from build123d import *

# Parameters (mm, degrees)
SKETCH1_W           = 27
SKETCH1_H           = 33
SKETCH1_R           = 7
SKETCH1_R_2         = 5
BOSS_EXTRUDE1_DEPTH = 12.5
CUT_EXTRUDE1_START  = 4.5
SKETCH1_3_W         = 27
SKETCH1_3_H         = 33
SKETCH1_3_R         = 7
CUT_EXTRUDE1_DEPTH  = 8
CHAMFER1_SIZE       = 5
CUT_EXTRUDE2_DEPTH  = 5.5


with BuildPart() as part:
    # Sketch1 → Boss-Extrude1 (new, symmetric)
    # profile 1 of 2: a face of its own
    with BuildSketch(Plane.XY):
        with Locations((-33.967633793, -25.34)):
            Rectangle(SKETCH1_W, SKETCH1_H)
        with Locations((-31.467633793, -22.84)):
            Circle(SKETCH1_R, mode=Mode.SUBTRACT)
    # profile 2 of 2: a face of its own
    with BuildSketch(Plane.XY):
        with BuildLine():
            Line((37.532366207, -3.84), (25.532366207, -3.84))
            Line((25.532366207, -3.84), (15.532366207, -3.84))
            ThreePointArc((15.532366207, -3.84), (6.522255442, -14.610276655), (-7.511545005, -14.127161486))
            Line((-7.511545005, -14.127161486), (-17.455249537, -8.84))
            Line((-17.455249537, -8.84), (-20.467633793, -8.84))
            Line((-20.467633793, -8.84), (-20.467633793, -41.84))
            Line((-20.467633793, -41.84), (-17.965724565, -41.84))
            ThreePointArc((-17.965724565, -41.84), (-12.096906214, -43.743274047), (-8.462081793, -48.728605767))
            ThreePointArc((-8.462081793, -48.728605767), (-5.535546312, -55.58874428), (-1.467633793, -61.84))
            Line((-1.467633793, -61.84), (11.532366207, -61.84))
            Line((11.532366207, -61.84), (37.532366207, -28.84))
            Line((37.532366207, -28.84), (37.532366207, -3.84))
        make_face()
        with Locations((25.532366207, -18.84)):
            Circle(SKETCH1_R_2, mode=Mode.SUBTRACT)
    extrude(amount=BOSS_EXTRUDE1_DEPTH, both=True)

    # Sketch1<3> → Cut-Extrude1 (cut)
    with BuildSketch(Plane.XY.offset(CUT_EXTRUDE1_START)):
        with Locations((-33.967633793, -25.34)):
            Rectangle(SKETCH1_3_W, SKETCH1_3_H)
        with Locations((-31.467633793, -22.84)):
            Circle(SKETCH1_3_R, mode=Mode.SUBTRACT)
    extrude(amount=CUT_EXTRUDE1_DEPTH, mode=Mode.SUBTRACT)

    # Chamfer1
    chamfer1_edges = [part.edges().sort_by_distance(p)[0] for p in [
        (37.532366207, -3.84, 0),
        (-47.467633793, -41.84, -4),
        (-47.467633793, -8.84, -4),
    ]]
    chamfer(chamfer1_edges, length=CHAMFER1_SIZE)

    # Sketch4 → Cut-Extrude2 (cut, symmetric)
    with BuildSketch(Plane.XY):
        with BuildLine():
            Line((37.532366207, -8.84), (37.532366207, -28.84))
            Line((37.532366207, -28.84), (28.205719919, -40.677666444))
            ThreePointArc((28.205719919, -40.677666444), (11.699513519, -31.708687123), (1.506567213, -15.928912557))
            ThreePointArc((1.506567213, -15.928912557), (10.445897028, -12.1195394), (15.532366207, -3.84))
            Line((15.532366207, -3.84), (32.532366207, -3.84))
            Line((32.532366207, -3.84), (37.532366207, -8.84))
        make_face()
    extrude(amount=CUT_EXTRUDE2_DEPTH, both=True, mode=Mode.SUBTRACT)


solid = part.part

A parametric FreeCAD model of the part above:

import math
import FreeCAD as App
import Part
import Sketcher
from FreeCAD import Vector
Q = App.Units.Quantity


def edges_at(feature, points):
    """Names of the edges that pass closest to the given points."""
    edges = feature.Shape.Edges
    near = lambda p: min(range(len(edges)), key=lambda i: edges[i].distToShape(Part.Vertex(*p))[0])
    return sorted({f"Edge{near(p) + 1}" for p in points})

doc = App.newDocument("Part")
params = doc.addObject("Spreadsheet::Sheet", "Params")
for row, (alias, value) in enumerate([
    ("sketch1_diameter", "14 mm"),
    ("sketch1_diameter2", "10 mm"),
    ("sketch1_radius", "10 mm"),
    ("sketch1_radius2", "43 mm"),
    ("sketch1_radius3", "16 mm"),
    ("pad1_length", "25 mm"),
    ("sketch2_diameter", "14 mm"),
    ("sketch2_width", "27 mm"),
    ("sketch2_height", "33 mm"),
    ("pocket1_length", "8 mm"),
    ("chamfer_size", "5 mm"),
    ("sketch3_radius", "16 mm"),
    ("sketch3_radius2", "38 mm"),
    ("sketch3_width", "17 mm"),
    ("sketch3_height", "20 mm"),
    ("pocket2_length", "11 mm"),
], start=1):
    params.set(f"A{row}", alias)
    params.set(f"B{row}", "=" + value)
    params.setAlias(f"B{row}", alias)

body = doc.addObject("PartDesign::Body", "Body")

sketch1 = doc.addObject("Sketcher::SketchObject", "Sketch")
body.addObject(sketch1)
sketch1.AttachmentSupport = (doc.XY_Plane, [""])
sketch1.MapMode = "FlatFace"
sketch1.addGeometry([
    Part.LineSegment(Vector(-47, -9, 0), Vector(-47, -42, 0)),
    Part.LineSegment(Vector(-47, -42, 0), Vector(-18, -42, 0)),
    Part.ArcOfCircle(Part.Circle(Vector(-18, -52, 0), Vector(0, 0, 1), 10), math.radians(18), math.radians(90)),
    Part.ArcOfCircle(Part.Circle(Vector(32, -35, 0), Vector(0, 0, 1), 43), math.radians(-161.87), math.radians(-141.97)),
    Part.LineSegment(Vector(-1, -62, 0), Vector(12, -62, 0)),
    Part.LineSegment(Vector(12, -62, 0), Vector(38, -29, 0)),
    Part.LineSegment(Vector(38, -29, 0), Vector(38, -4, 0)),
    Part.LineSegment(Vector(38, -4, 0), Vector(16, -4, 0)),
    Part.ArcOfCircle(Part.Circle(Vector(0, 0, 0), Vector(0, 0, 1), 16), math.radians(-118), math.radians(-14)),
    Part.LineSegment(Vector(-8, -14, 0), Vector(-17, -9, 0)),
    Part.LineSegment(Vector(-17, -9, 0), Vector(-47, -9, 0)),
    Part.Circle(Vector(-31, -23, 0), Vector(0, 0, 1), 7),
    Part.Circle(Vector(26, -19, 0), Vector(0, 0, 1), 5),
], False)
sketch1.addConstraint([
    Sketcher.Constraint("Coincident", 0, 2, 1, 1),
    Sketcher.Constraint("Tangent", 1, 2, 2, 2),
    Sketcher.Constraint("Tangent", 2, 1, 3, 1),
    Sketcher.Constraint("Coincident", 3, 2, 4, 1),
    Sketcher.Constraint("Coincident", 4, 2, 5, 1),
    Sketcher.Constraint("Coincident", 5, 2, 6, 1),
    Sketcher.Constraint("Coincident", 6, 2, 7, 1),
    Sketcher.Constraint("Coincident", 7, 2, 8, 2),
    Sketcher.Constraint("Tangent", 8, 1, 9, 1),
    Sketcher.Constraint("Coincident", 9, 2, 10, 1),
    Sketcher.Constraint("Coincident", 10, 2, 0, 1),
    Sketcher.Constraint("Vertical", 0),
    Sketcher.Constraint("Horizontal", 1),
    Sketcher.Constraint("Horizontal", 4),
    Sketcher.Constraint("Vertical", 6),
    Sketcher.Constraint("Horizontal", 7),
    Sketcher.Constraint("Horizontal", 10),
    Sketcher.Constraint("Coincident", 8, 3, -1, 1),
    Sketcher.Constraint("Diameter", 11, Q("14 mm")),
    Sketcher.Constraint("Diameter", 12, Q("10 mm")),
    Sketcher.Constraint("Radius", 2, Q("10 mm")),
    Sketcher.Constraint("Radius", 3, Q("43 mm")),
    Sketcher.Constraint("Radius", 8, Q("16 mm")),
    Sketcher.Constraint("DistanceX", 4, 1, 4, 2, Q("13 mm")),
    Sketcher.Constraint("DistanceX", 7, 2, 7, 1, Q("22 mm")),
    Sketcher.Constraint("DistanceY", 0, 2, 0, 1, Q("33 mm")),
    Sketcher.Constraint("DistanceY", 6, 1, 6, 2, Q("25 mm")),
    Sketcher.Constraint("Angle", 9, Q("152 deg")),
    Sketcher.Constraint("DistanceY", 2, 3, 11, 3, Q("29 mm")),
    Sketcher.Constraint("DistanceY", 2, 3, 12, 3, Q("33 mm")),
    Sketcher.Constraint("DistanceX", 11, 3, 12, 3, Q("57 mm")),
    Sketcher.Constraint("DistanceX", 0, 2, 11, 3, Q("16 mm")),
    Sketcher.Constraint("DistanceY", 3, 2, 2, 3, Q("10 mm")),
    Sketcher.Constraint("DistanceX", 11, 3, 3, 2, Q("30 mm")),
    Sketcher.Constraint("DistanceX", 12, 3, 5, 2, Q("12 mm")),
    Sketcher.Constraint("DistanceY", 5, 2, 12, 3, Q("10 mm")),
    Sketcher.Constraint("DistanceY", 2, 3, -1, 1, Q("51.84 mm")),
    Sketcher.Constraint("DistanceX", 1, 1, 1, 2, Q("29.501909 mm")),
])
sketch1.setExpression("Constraints[18]", "Params.sketch1_diameter")
sketch1.setExpression("Constraints[19]", "Params.sketch1_diameter2")
sketch1.setExpression("Constraints[20]", "Params.sketch1_radius")
sketch1.setExpression("Constraints[21]", "Params.sketch1_radius2")
sketch1.setExpression("Constraints[22]", "Params.sketch1_radius3")
pad1 = doc.addObject("PartDesign::Pad", "Pad")
body.addObject(pad1)
pad1.Profile = sketch1
pad1.setExpression("Length", "Params.pad1_length")
pad1.Midplane = True

sketch2 = doc.addObject("Sketcher::SketchObject", "Sketch001")
body.addObject(sketch2)
sketch2.AttachmentSupport = (doc.XY_Plane, [""])
sketch2.MapMode = "FlatFace"
sketch2.AttachmentOffset = App.Placement(Vector(0, 0, 4.5), App.Rotation())
sketch2.addGeometry([
    Part.LineSegment(Vector(-47, -9, 0), Vector(-47, -42, 0)),
    Part.LineSegment(Vector(-47, -42, 0), Vector(-20, -42, 0)),
    Part.LineSegment(Vector(-20, -42, 0), Vector(-20, -9, 0)),
    Part.LineSegment(Vector(-20, -9, 0), Vector(-47, -9, 0)),
    Part.Circle(Vector(-31, -23, 0), Vector(0, 0, 1), 7),
], False)
sketch2.addConstraint([
    Sketcher.Constraint("Coincident", 0, 2, 1, 1),
    Sketcher.Constraint("Coincident", 1, 2, 2, 1),
    Sketcher.Constraint("Coincident", 2, 2, 3, 1),
    Sketcher.Constraint("Coincident", 3, 2, 0, 1),
    Sketcher.Constraint("Vertical", 0),
    Sketcher.Constraint("Horizontal", 1),
    Sketcher.Constraint("Vertical", 2),
    Sketcher.Constraint("Horizontal", 3),
    Sketcher.Constraint("Diameter", 4, Q("14 mm")),
    Sketcher.Constraint("DistanceX", 1, 1, 1, 2, Q("27 mm")),
    Sketcher.Constraint("DistanceY", 0, 2, 0, 1, Q("33 mm")),
    Sketcher.Constraint("DistanceX", 0, 2, 4, 3, Q("16 mm")),
    Sketcher.Constraint("DistanceY", 0, 2, 4, 3, Q("19 mm")),
    Sketcher.Constraint("DistanceY", 4, 3, -1, 1, Q("22.84 mm")),
    Sketcher.Constraint("DistanceX", 4, 3, -1, 1, Q("31.467634 mm")),
])
sketch2.setExpression("Constraints[8]", "Params.sketch2_diameter")
sketch2.setExpression("Constraints[9]", "Params.sketch2_width")
sketch2.setExpression("Constraints[10]", "Params.sketch2_height")
pocket1 = doc.addObject("PartDesign::Pocket", "Pocket")
body.addObject(pocket1)
pocket1.Profile = sketch2
pocket1.setExpression("Length", "Params.pocket1_length")
pocket1.Reversed = True
doc.recompute()

chamfer = doc.addObject("PartDesign::Chamfer", "Chamfer")
body.addObject(chamfer)
chamfer.Base = (pocket1, edges_at(pocket1, [(37.532, -3.84, 0), (-47.468, -41.84, -4), (-47.468, -8.84, -4)]))
chamfer.setExpression("Size", "Params.chamfer_size")

sketch3 = doc.addObject("Sketcher::SketchObject", "Sketch002")
body.addObject(sketch3)
sketch3.AttachmentSupport = (doc.XY_Plane, [""])
sketch3.MapMode = "FlatFace"
sketch3.addGeometry([
    Part.LineSegment(Vector(38, -29, 0), Vector(38, -9, 0)),
    Part.LineSegment(Vector(38, -9, 0), Vector(33, -4, 0)),
    Part.LineSegment(Vector(33, -4, 0), Vector(16, -4, 0)),
    Part.ArcOfCircle(Part.Circle(Vector(0, 0, 0), Vector(0, 0, 1), 16), math.radians(-85), math.radians(-14)),
    Part.ArcOfCircle(Part.Circle(Vector(38, -4, 0), Vector(0, 0, 1), 38), math.radians(-161), math.radians(-104)),
    Part.LineSegment(Vector(28, -41, 0), Vector(38, -29, 0)),
], False)
sketch3.addConstraint([
    Sketcher.Constraint("Coincident", 0, 2, 1, 1),
    Sketcher.Constraint("Coincident", 1, 2, 2, 1),
    Sketcher.Constraint("Coincident", 2, 2, 3, 2),
    Sketcher.Constraint("Coincident", 3, 1, 4, 1),
    Sketcher.Constraint("Coincident", 4, 2, 5, 1),
    Sketcher.Constraint("Coincident", 5, 2, 0, 1),
    Sketcher.Constraint("Vertical", 0),
    Sketcher.Constraint("Horizontal", 2),
    Sketcher.Constraint("Coincident", 3, 3, -1, 1),
    Sketcher.Constraint("Horizontal", 4, 3, 1, 2),
    Sketcher.Constraint("Vertical", 4, 3, 0, 2),
    Sketcher.Constraint("Radius", 3, Q("16 mm")),
    Sketcher.Constraint("Radius", 4, Q("38 mm")),
    Sketcher.Constraint("DistanceX", 2, 2, 2, 1, Q("17 mm")),
    Sketcher.Constraint("DistanceY", 0, 1, 0, 2, Q("20 mm")),
    Sketcher.Constraint("Angle", 1, Q("135 deg")),
    Sketcher.Constraint("DistanceY", 0, 2, 4, 3, Q("5 mm")),
    Sketcher.Constraint("DistanceY", 4, 3, -1, 1, Q("3.84 mm")),
    Sketcher.Constraint("Distance", 5, Q("15.070391 mm")),
])
sketch3.setExpression("Constraints[11]", "Params.sketch3_radius")
sketch3.setExpression("Constraints[12]", "Params.sketch3_radius2")
sketch3.setExpression("Constraints[13]", "Params.sketch3_width")
sketch3.setExpression("Constraints[14]", "Params.sketch3_height")
pocket2 = doc.addObject("PartDesign::Pocket", "Pocket001")
body.addObject(pocket2)
pocket2.Profile = sketch3
pocket2.setExpression("Length", "Params.pocket2_length")
pocket2.Midplane = True

doc.recompute()
